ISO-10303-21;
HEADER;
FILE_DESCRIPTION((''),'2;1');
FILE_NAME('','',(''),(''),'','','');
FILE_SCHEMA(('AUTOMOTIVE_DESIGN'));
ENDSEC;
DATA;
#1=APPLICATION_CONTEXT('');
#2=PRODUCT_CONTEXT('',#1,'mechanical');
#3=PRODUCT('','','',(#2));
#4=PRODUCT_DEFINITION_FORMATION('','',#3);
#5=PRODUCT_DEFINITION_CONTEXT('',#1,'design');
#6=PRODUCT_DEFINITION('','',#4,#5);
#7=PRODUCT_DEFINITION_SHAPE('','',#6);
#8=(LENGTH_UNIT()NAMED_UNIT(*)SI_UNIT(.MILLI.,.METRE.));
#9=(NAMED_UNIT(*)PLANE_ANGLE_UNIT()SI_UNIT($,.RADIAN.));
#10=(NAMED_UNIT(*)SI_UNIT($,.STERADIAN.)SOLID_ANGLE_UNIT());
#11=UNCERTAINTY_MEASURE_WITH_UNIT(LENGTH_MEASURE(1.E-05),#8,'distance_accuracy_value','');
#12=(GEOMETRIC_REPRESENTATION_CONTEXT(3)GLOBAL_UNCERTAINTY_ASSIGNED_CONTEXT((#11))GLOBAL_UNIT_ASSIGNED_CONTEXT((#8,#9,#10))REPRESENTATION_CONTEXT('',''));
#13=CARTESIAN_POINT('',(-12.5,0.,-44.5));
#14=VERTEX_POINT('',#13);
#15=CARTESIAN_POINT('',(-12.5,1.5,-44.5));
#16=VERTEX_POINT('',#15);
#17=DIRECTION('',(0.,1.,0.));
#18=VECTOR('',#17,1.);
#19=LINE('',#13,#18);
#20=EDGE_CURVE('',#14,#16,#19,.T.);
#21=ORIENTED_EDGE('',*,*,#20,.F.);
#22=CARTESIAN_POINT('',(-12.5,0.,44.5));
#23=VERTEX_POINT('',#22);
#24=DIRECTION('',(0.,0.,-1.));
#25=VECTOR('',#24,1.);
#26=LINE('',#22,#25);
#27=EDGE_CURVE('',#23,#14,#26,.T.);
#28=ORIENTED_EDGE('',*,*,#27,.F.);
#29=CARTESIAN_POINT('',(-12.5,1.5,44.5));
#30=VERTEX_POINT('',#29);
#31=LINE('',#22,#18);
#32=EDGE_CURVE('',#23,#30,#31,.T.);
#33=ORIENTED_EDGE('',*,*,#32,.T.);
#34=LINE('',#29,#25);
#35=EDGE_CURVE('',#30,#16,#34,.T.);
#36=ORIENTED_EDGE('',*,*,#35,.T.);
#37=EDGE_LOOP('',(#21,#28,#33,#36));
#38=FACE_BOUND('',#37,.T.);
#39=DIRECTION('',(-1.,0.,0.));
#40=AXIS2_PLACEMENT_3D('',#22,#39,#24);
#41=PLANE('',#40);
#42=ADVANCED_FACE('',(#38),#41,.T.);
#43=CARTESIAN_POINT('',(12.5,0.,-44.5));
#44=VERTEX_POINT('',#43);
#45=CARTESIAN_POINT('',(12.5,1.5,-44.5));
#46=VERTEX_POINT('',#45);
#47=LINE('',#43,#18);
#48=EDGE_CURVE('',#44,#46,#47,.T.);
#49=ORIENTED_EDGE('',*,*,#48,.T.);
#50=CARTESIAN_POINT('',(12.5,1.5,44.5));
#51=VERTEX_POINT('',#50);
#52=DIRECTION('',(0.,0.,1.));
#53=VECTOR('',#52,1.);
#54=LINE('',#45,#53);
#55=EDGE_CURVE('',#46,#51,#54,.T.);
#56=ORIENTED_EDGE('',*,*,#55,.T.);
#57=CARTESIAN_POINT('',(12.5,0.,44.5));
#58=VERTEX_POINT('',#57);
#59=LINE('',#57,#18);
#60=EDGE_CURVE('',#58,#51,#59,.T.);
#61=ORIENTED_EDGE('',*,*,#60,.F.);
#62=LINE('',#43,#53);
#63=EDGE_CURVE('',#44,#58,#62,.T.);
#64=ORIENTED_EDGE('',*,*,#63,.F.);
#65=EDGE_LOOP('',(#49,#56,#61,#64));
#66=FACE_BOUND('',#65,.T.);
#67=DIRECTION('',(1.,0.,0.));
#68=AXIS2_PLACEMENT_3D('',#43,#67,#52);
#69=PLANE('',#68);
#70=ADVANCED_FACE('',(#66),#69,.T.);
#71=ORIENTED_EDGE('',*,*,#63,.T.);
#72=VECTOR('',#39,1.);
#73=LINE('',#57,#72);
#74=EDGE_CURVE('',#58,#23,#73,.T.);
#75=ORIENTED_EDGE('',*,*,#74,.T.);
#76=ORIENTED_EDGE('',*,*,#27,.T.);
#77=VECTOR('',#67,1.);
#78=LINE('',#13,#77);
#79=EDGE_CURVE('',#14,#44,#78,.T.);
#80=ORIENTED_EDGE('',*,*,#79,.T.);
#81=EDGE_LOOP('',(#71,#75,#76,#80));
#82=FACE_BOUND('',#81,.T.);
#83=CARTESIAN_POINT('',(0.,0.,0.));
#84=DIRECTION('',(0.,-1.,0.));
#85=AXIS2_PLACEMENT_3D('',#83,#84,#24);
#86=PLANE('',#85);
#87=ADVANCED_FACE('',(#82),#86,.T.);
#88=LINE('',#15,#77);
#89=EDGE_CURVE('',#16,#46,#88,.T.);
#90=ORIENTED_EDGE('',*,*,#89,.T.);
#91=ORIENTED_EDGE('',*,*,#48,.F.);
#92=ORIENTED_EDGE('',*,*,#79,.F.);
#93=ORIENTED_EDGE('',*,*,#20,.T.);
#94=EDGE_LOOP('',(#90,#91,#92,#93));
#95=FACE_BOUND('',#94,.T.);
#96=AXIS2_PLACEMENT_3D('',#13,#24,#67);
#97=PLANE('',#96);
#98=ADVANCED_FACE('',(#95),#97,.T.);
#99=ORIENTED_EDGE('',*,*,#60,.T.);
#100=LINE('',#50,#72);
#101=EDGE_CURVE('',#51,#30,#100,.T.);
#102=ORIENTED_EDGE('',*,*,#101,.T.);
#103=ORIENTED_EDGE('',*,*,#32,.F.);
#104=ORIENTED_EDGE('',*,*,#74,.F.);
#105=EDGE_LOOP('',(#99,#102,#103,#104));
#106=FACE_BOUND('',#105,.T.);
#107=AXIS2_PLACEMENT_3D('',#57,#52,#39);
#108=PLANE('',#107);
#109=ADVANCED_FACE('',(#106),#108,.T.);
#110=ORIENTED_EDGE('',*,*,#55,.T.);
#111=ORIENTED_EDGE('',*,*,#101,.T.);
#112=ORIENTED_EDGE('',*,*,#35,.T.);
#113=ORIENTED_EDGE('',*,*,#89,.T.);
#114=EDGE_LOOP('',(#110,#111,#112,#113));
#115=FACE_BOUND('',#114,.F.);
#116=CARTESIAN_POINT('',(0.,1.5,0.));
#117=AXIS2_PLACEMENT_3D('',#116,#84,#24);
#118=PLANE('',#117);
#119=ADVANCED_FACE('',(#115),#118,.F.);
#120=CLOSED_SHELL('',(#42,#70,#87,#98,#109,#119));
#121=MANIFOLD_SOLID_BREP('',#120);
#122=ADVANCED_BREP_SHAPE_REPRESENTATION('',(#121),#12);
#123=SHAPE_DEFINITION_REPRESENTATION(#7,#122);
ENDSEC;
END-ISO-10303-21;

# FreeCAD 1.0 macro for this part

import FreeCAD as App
import Part
import Sketcher
Q = App.Units.Quantity


def add_polygon(sketch, points):
    """Adds a closed chain of lines whose ends are joined by coincident constraints."""
    first, n = sketch.GeometryCount, len(points)
    for a, b in zip(points, points[1:] + points[:1]):
        sketch.addGeometry(Part.LineSegment(App.Vector(*a, 0), App.Vector(*b, 0)), False)
    for i in range(n):
        sketch.addConstraint(Sketcher.Constraint("Coincident", first + i, 2, first + (i + 1) % n, 1))

doc = App.newDocument("Part")
params = doc.addObject("Spreadsheet::Sheet", "Params")
for row, (alias, value) in enumerate([
    ("sketch1_width", "25 mm"),
    ("sketch1_height", "89 mm"),
    ("pad1_length", "1.5 mm"),
], start=1):
    params.set(f"A{row}", alias)
    params.set(f"B{row}", "=" + value)
    params.setAlias(f"B{row}", alias)

body = doc.addObject("PartDesign::Body", "Body")

# Sketch on XZ plane
sketch1 = body.newObject("Sketcher::SketchObject", "Sketch")
sketch1.AttachmentSupport = (doc.getObject("XZ_Plane"), [""])
sketch1.MapMode = "FlatFace"
add_polygon(sketch1, [(-12, 44), (-12, -44), (12, -44), (12, 44)])  # lines 0-3
sketch1.addConstraint(Sketcher.Constraint("Vertical", 0))
sketch1.addConstraint(Sketcher.Constraint("Horizontal", 1))
sketch1.addConstraint(Sketcher.Constraint("Vertical", 2))
sketch1.addConstraint(Sketcher.Constraint("Horizontal", 3))
sketch1.addConstraint(Sketcher.Constraint("Symmetric", 0, 2, 2, 2, -1, 1))
sketch1.addConstraint(Sketcher.Constraint("DistanceX", 1, 1, 1, 2, Q("25 mm")))
sketch1.addConstraint(Sketcher.Constraint("DistanceY", 0, 2, 0, 1, Q("89 mm")))
sketch1.setExpression("Constraints[9]", "Params.sketch1_width")
sketch1.setExpression("Constraints[10]", "Params.sketch1_height")
pad1 = body.newObject("PartDesign::Pad", "Pad")
pad1.Profile = sketch1
pad1.setExpression("Length", "Params.pad1_length")
pad1.Reversed = True

doc.recompute()
